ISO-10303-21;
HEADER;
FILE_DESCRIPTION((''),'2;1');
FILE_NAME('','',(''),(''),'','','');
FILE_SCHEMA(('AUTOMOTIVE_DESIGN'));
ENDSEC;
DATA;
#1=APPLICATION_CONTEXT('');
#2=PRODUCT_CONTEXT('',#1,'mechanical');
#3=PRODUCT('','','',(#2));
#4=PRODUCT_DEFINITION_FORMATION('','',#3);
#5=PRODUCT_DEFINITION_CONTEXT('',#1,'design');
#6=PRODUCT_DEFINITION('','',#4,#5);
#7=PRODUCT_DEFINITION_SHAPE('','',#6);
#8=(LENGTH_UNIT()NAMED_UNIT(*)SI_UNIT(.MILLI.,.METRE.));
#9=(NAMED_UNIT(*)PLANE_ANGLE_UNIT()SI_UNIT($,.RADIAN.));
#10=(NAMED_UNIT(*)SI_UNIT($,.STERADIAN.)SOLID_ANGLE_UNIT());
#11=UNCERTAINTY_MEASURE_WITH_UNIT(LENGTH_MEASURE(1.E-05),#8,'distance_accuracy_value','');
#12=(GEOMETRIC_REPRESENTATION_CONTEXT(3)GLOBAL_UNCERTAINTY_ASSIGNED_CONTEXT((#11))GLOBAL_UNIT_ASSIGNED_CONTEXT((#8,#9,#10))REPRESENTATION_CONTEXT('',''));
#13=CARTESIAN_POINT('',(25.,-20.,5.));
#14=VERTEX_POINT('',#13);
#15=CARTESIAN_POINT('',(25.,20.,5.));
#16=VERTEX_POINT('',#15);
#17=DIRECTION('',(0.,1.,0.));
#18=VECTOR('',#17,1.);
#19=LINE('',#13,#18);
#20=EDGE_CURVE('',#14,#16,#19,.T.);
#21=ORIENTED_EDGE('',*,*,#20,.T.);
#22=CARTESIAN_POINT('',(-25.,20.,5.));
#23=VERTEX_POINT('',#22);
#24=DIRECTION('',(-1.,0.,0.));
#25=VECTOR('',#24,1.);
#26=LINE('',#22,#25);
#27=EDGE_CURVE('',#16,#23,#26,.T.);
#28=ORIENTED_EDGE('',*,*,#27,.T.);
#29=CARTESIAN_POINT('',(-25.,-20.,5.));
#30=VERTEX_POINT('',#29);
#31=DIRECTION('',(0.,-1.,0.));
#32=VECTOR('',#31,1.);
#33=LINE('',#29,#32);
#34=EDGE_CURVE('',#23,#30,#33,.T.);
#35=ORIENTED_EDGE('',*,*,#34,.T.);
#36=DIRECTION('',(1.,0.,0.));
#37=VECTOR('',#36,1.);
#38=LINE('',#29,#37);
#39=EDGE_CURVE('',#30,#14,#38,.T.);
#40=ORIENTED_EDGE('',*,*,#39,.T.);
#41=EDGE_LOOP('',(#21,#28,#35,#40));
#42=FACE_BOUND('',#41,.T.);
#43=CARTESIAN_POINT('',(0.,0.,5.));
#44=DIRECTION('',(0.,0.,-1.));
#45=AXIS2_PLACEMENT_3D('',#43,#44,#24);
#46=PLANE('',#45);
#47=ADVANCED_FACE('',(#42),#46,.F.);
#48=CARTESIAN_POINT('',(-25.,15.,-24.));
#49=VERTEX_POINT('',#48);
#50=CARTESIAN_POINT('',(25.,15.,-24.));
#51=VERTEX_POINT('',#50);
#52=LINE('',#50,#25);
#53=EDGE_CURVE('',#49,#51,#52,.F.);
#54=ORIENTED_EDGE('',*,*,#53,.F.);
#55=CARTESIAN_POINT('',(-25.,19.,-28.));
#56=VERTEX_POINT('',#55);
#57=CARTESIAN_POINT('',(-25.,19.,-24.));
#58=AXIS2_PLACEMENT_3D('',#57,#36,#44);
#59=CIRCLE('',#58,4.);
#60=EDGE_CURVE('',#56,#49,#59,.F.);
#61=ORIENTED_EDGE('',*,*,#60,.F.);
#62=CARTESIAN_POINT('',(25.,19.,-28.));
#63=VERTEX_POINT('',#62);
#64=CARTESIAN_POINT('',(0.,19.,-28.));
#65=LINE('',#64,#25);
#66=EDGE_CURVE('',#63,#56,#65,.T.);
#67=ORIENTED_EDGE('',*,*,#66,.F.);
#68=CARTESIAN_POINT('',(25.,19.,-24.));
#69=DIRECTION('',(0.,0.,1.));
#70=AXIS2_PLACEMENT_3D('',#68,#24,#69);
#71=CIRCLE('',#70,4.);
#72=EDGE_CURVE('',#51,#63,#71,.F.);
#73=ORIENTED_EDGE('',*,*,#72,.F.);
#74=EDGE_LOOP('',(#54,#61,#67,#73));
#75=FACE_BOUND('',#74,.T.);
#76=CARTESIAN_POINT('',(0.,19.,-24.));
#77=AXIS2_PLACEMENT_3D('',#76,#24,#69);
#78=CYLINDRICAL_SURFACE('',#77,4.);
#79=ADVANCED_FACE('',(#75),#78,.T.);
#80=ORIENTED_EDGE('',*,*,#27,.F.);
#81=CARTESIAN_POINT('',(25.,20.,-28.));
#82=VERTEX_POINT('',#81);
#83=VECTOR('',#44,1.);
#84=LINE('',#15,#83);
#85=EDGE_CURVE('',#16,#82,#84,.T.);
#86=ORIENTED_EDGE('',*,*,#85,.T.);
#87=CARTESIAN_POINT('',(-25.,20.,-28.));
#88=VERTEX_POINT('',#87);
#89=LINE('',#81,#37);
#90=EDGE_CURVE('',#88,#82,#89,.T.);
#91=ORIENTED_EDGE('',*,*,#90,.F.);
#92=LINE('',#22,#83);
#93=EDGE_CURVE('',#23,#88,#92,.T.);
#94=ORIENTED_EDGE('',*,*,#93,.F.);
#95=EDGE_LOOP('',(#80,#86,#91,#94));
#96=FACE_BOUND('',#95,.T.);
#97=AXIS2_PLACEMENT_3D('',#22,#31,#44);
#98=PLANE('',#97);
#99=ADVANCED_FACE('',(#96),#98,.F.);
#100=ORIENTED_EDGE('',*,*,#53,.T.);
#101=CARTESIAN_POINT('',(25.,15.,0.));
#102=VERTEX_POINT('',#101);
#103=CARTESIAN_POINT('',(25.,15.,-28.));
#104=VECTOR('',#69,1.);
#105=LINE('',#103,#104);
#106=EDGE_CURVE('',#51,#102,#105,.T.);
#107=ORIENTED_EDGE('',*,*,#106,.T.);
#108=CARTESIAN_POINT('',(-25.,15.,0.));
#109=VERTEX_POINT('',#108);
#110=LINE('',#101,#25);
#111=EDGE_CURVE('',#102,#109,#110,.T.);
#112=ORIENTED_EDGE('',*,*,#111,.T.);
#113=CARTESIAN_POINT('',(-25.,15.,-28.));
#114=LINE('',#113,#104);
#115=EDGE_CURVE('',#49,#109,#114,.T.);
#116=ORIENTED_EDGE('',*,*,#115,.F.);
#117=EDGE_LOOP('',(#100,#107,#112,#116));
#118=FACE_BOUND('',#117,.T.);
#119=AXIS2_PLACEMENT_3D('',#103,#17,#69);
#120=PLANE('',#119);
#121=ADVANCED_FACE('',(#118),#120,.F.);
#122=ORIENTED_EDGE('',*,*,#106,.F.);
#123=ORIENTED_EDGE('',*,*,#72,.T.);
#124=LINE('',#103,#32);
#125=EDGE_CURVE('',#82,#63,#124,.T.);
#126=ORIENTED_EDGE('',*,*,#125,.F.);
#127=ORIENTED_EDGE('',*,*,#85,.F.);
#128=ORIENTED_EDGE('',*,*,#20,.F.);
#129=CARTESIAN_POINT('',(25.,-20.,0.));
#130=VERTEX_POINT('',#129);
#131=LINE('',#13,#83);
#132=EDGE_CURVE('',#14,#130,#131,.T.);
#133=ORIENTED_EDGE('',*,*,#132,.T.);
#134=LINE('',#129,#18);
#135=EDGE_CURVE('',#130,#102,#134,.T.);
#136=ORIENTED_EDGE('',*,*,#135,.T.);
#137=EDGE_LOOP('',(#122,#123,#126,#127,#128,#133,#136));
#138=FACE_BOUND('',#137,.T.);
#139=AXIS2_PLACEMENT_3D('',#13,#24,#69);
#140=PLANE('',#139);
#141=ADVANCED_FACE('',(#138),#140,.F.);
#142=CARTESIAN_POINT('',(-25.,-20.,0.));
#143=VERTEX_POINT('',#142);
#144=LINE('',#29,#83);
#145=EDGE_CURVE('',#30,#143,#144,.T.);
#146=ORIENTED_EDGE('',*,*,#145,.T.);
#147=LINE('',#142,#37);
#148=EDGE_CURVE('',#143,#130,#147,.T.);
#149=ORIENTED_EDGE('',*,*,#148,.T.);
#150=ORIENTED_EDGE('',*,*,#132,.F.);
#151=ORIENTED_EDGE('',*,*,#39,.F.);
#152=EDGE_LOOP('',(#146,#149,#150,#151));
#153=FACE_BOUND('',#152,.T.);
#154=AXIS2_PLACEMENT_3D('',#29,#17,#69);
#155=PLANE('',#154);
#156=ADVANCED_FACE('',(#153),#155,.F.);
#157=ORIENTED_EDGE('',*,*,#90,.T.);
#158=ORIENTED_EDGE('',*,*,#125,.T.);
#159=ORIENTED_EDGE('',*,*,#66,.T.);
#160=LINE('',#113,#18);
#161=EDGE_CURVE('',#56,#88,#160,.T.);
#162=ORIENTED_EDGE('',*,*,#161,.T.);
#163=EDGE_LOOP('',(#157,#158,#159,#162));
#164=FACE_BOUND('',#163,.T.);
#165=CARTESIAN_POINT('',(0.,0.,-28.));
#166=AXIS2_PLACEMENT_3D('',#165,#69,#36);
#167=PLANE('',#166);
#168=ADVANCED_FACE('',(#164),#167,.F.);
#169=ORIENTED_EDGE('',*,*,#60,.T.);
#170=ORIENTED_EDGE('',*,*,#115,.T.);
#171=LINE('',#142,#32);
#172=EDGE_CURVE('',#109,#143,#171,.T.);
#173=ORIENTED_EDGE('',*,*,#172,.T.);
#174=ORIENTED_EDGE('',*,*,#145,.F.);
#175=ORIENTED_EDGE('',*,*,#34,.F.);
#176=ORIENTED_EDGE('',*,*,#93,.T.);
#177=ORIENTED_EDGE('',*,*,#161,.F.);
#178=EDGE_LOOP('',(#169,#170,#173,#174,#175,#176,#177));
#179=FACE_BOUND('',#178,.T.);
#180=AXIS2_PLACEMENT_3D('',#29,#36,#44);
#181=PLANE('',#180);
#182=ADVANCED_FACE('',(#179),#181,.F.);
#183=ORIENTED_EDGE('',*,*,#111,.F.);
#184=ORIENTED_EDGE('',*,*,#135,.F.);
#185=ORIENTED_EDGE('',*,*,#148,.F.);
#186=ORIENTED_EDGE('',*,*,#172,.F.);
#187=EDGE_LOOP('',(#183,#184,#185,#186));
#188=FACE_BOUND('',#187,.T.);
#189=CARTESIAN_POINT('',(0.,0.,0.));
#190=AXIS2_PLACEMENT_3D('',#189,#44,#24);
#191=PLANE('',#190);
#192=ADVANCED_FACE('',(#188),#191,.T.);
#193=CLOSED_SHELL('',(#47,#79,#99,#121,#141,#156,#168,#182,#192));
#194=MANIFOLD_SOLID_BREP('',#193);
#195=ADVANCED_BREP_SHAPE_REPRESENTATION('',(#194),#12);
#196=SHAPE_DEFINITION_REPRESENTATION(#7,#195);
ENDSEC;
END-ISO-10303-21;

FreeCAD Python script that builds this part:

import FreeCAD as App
import Part
import Sketcher

V = App.Vector


def edges_at(feature, points):
    """Names of the edges that pass closest to the given points."""
    edges = feature.Shape.Edges
    near = lambda p: min(range(len(edges)), key=lambda i: edges[i].distToShape(Part.Vertex(*p))[0])
    return sorted({f"Edge{near(p) + 1}" for p in points})

doc = App.newDocument("Part")
body = doc.addObject("PartDesign::Body", "Body")

# Sketch on XY plane
sketch1 = doc.addObject("Sketcher::SketchObject", "Sketch")
body.addObject(sketch1)
sketch1.AttachmentSupport = (doc.XY_Plane, [""])
sketch1.MapMode = "FlatFace"
sketch1.addGeometry(Part.LineSegment(V(-25, 20, 0), V(-25, -20, 0)), False)
sketch1.addGeometry(Part.LineSegment(V(-25, -20, 0), V(25, -20, 0)), False)
sketch1.addGeometry(Part.LineSegment(V(25, -20, 0), V(25, 20, 0)), False)
sketch1.addGeometry(Part.LineSegment(V(25, 20, 0), V(-25, 20, 0)), False)
sketch1.addConstraint(Sketcher.Constraint("Coincident", 0, 2, 1, 1))
sketch1.addConstraint(Sketcher.Constraint("Coincident", 1, 2, 2, 1))
sketch1.addConstraint(Sketcher.Constraint("Coincident", 2, 2, 3, 1))
sketch1.addConstraint(Sketcher.Constraint("Coincident", 3, 2, 0, 1))
sketch1.addConstraint(Sketcher.Constraint("Vertical", 0))
sketch1.addConstraint(Sketcher.Constraint("Horizontal", 1))
sketch1.addConstraint(Sketcher.Constraint("Vertical", 2))
sketch1.addConstraint(Sketcher.Constraint("Horizontal", 3))
sketch1.addConstraint(Sketcher.Constraint("Symmetric", 0, 2, 2, 2, -1, 1))
sketch1.addConstraint(Sketcher.Constraint("DistanceX", 1, 1, 1, 2, 50.0))
sketch1.addConstraint(Sketcher.Constraint("DistanceY", 0, 2, 0, 1, 40.0))
pad1 = doc.addObject("PartDesign::Pad", "Pad")
body.addObject(pad1)
pad1.Profile = sketch1
pad1.Length = 5

# Sketch on XY plane
sketch2 = doc.addObject("Sketcher::SketchObject", "Sketch001")
body.addObject(sketch2)
sketch2.AttachmentSupport = (doc.XY_Plane, [""])
sketch2.MapMode = "FlatFace"
sketch2.addGeometry(Part.LineSegment(V(25, 20, 0), V(25, 15, 0)), False)
sketch2.addGeometry(Part.LineSegment(V(25, 15, 0), V(-25, 15, 0)), False)
sketch2.addGeometry(Part.LineSegment(V(-25, 15, 0), V(-25, 20, 0)), False)
sketch2.addGeometry(Part.LineSegment(V(-25, 20, 0), V(25, 20, 0)), False)
sketch2.addConstraint(Sketcher.Constraint("Coincident", 0, 2, 1, 1))
sketch2.addConstraint(Sketcher.Constraint("Coincident", 1, 2, 2, 1))
sketch2.addConstraint(Sketcher.Constraint("Coincident", 2, 2, 3, 1))
sketch2.addConstraint(Sketcher.Constraint("Coincident", 3, 2, 0, 1))
sketch2.addConstraint(Sketcher.Constraint("Vertical", 0))
sketch2.addConstraint(Sketcher.Constraint("Horizontal", 1))
sketch2.addConstraint(Sketcher.Constraint("Vertical", 2))
sketch2.addConstraint(Sketcher.Constraint("Horizontal", 3))
sketch2.addConstraint(Sketcher.Constraint("DistanceX", 1, 2, 1, 1, 50.0))
sketch2.addConstraint(Sketcher.Constraint("DistanceY", 0, 2, 0, 1, 5.0))
sketch2.addConstraint(Sketcher.Constraint("DistanceX", -1, 1, 0, 2, 25.0))
sketch2.addConstraint(Sketcher.Constraint("DistanceY", -1, 1, 0, 2, 15.0))
pad2 = doc.addObject("PartDesign::Pad", "Pad001")
body.addObject(pad2)
pad2.Profile = sketch2
pad2.Length = 28
pad2.Reversed = True
doc.recompute()

fillet = doc.addObject("PartDesign::Fillet", "Fillet")
body.addObject(fillet)
fillet.Base = (pad2, edges_at(pad2, [(0, 15, -28)]))
fillet.Radius = 4

doc.recompute()
